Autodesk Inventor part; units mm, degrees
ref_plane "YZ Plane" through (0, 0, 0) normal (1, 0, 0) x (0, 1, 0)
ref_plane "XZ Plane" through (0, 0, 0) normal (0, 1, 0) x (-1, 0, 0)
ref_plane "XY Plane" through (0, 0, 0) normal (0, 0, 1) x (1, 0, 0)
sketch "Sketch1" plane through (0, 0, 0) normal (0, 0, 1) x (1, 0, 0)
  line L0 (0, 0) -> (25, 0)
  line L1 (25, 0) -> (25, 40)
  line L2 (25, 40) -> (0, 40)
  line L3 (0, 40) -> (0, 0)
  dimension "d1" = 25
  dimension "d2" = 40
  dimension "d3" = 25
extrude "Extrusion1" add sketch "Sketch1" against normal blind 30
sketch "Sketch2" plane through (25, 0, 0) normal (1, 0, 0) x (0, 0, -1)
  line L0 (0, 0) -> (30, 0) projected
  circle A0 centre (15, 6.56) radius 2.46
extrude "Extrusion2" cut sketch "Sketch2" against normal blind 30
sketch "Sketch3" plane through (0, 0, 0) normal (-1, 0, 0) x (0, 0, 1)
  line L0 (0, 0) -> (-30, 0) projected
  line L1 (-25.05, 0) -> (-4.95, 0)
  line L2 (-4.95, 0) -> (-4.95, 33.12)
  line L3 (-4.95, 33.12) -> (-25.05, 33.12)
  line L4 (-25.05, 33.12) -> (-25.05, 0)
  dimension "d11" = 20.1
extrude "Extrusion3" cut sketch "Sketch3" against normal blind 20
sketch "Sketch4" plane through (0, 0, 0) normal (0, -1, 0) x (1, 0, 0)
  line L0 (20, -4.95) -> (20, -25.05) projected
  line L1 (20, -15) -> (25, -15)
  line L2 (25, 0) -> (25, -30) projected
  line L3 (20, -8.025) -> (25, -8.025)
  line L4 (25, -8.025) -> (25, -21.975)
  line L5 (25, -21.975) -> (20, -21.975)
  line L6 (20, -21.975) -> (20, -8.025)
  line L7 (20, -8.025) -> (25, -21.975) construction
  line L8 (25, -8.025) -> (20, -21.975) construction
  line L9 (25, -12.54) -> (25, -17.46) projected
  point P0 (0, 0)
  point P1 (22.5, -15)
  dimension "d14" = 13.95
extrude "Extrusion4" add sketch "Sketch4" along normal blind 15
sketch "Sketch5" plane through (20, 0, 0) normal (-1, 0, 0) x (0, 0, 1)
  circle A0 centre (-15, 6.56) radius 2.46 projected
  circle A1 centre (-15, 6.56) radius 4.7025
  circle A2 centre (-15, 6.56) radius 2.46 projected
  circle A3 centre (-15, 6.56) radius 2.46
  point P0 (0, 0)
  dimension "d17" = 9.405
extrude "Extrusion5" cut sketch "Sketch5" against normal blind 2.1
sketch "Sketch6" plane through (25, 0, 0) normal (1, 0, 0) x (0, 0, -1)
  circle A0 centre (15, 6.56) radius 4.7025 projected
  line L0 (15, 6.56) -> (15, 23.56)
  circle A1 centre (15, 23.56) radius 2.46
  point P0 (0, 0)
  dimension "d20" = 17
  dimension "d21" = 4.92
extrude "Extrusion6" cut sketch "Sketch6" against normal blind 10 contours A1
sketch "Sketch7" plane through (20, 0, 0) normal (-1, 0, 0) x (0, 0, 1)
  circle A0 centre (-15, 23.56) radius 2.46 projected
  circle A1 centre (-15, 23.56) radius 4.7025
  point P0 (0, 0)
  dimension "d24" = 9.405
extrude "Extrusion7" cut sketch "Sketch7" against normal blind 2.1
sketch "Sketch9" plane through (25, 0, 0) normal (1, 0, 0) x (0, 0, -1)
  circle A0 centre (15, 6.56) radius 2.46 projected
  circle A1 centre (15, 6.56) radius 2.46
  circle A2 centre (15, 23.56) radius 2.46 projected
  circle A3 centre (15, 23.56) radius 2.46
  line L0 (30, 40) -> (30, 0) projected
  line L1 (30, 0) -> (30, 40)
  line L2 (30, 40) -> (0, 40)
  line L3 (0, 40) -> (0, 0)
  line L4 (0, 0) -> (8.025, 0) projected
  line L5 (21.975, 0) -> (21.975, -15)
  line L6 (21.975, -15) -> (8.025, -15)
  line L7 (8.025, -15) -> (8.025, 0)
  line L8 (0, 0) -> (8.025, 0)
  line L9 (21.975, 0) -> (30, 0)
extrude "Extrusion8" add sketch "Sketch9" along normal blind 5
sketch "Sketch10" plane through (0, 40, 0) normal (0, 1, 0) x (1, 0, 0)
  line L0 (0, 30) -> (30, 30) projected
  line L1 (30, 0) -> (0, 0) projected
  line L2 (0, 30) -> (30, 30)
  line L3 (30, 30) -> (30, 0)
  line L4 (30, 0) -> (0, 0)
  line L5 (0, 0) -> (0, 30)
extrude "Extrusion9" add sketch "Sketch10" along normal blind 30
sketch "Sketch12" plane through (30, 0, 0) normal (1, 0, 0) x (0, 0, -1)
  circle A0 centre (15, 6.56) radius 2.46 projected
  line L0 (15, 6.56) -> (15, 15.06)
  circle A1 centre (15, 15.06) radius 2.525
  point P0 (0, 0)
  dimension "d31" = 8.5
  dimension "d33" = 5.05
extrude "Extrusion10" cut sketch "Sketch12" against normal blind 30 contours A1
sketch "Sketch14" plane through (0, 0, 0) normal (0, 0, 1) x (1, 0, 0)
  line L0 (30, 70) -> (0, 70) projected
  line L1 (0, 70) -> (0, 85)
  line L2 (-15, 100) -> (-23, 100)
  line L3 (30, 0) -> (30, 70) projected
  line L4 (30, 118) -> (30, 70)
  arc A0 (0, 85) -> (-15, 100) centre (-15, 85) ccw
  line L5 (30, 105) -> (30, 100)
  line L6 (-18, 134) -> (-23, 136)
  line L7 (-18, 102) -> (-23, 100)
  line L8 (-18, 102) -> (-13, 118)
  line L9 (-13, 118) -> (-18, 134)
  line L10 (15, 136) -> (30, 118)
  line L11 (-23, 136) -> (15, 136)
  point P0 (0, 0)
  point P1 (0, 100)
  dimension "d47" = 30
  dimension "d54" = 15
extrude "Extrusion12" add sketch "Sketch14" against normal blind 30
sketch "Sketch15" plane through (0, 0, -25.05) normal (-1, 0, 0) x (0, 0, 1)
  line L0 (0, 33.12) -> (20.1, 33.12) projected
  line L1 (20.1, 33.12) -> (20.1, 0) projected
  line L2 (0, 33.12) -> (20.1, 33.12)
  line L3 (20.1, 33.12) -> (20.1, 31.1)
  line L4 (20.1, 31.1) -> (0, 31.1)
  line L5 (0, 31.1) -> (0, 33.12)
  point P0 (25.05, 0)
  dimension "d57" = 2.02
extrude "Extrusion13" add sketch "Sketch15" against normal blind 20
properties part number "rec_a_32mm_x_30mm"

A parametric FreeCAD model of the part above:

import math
import FreeCAD as App
import Part
import Sketcher


def add_polygon(sketch, points):
    """Adds a closed chain of lines whose ends are joined by coincident constraints."""
    first, n = sketch.GeometryCount, len(points)
    for a, b in zip(points, points[1:] + points[:1]):
        sketch.addGeometry(Part.LineSegment(App.Vector(*a, 0), App.Vector(*b, 0)), False)
    for i in range(n):
        sketch.addConstraint(Sketcher.Constraint("Coincident", first + i, 2, first + (i + 1) % n, 1))

doc = App.newDocument("Part")
body = doc.addObject("PartDesign::Body", "Body")

# Sketch on XY plane
sketch1 = body.newObject("Sketcher::SketchObject", "Sketch")
sketch1.AttachmentSupport = (doc.getObject("XY_Plane"), [""])
sketch1.MapMode = "FlatFace"
add_polygon(sketch1, [(0, 40), (0, 0), (25, 0), (25, 40)])  # lines 0-3
sketch1.addConstraint(Sketcher.Constraint("Vertical", 0))
sketch1.addConstraint(Sketcher.Constraint("Horizontal", 1))
sketch1.addConstraint(Sketcher.Constraint("Vertical", 2))
sketch1.addConstraint(Sketcher.Constraint("Horizontal", 3))
sketch1.addConstraint(Sketcher.Constraint("Coincident", 0, 2, -1, 1))
sketch1.addConstraint(Sketcher.Constraint("DistanceX", 1, 1, 1, 2, 25.0))
sketch1.addConstraint(Sketcher.Constraint("DistanceY", 0, 2, 0, 1, 40.0))
pad1 = body.newObject("PartDesign::Pad", "Pad")
pad1.Profile = sketch1
pad1.Length = 30
pad1.Reversed = True

# Sketch on YZ plane
sketch2 = body.newObject("Sketcher::SketchObject", "Sketch001")
sketch2.AttachmentSupport = (doc.getObject("YZ_Plane"), [""])
sketch2.MapMode = "FlatFace"
sketch2.AttachmentOffset = App.Placement(App.Vector(0, 0, 25), App.Rotation())
sketch2.addGeometry(Part.Circle(App.Vector(6.6, -15, 0), App.Vector(0, 0, 1), 2.5), False)
sketch2.addConstraint(Sketcher.Constraint("Diameter", 0, 4.92))
sketch2.addConstraint(Sketcher.Constraint("DistanceY", 0, 3, -1, 1, 15.0))
sketch2.addConstraint(Sketcher.Constraint("DistanceX", -1, 1, 0, 3, 6.56))
pocket1 = body.newObject("PartDesign::Pocket", "Pocket")
pocket1.Profile = sketch2
pocket1.Length = 30

# Sketch on YZ plane
sketch3 = body.newObject("Sketcher::SketchObject", "Sketch002")
sketch3.AttachmentSupport = (doc.getObject("YZ_Plane"), [""])
sketch3.MapMode = "FlatFace"
add_polygon(sketch3, [(0, -25), (0, -5), (33, -5), (33, -25)])  # lines 0-3
sketch3.addConstraint(Sketcher.Constraint("Vertical", 0))
sketch3.addConstraint(Sketcher.Constraint("Horizontal", 1))
sketch3.addConstraint(Sketcher.Constraint("Vertical", 2))
sketch3.addConstraint(Sketcher.Constraint("Horizontal", 3))
sketch3.addConstraint(Sketcher.Constraint("PointOnObject", 0, 2, -2))
sketch3.addConstraint(Sketcher.Constraint("DistanceY", 0, 1, 0, 2, 20.1))
sketch3.addConstraint(Sketcher.Constraint("DistanceX", 1, 1, 1, 2, 33.12))
sketch3.addConstraint(Sketcher.Constraint("DistanceY", 0, 2, -1, 1, 4.95))
pocket2 = body.newObject("PartDesign::Pocket", "Pocket001")
pocket2.Profile = sketch3
pocket2.Length = 20
pocket2.Reversed = True

# Sketch on XZ plane
sketch4 = body.newObject("Sketcher::SketchObject", "Sketch003")
sketch4.AttachmentSupport = (doc.getObject("XZ_Plane"), [""])
sketch4.MapMode = "FlatFace"
add_polygon(sketch4, [(25, -8), (20, -8), (20, -22), (25, -22)])  # lines 0-3
sketch4.addConstraint(Sketcher.Constraint("Horizontal", 0))
sketch4.addConstraint(Sketcher.Constraint("Vertical", 1))
sketch4.addConstraint(Sketcher.Constraint("Horizontal", 2))
sketch4.addConstraint(Sketcher.Constraint("Vertical", 3))
sketch4.addConstraint(Sketcher.Constraint("DistanceY", 1, 2, 1, 1, 13.95))
sketch4.addConstraint(Sketcher.Constraint("DistanceX", 0, 2, 0, 1, 5.0))
sketch4.addConstraint(Sketcher.Constraint("DistanceX", -1, 1, 0, 2, 20.0))
sketch4.addConstraint(Sketcher.Constraint("DistanceY", 0, 2, -1, 1, 8.025))
pad2 = body.newObject("PartDesign::Pad", "Pad001")
pad2.Profile = sketch4
pad2.Length = 15

# Sketch on YZ plane
sketch5 = body.newObject("Sketcher::SketchObject", "Sketch004")
sketch5.AttachmentSupport = (doc.getObject("YZ_Plane"), [""])
sketch5.MapMode = "FlatFace"
sketch5.AttachmentOffset = App.Placement(App.Vector(0, 0, 20), App.Rotation())
sketch5.addGeometry(Part.Circle(App.Vector(6.6, -15, 0), App.Vector(0, 0, 1), 4.7), False)
sketch5.addGeometry(Part.Circle(App.Vector(6.6, -15, 0), App.Vector(0, 0, 1), 2.5), False)
sketch5.addConstraint(Sketcher.Constraint("Coincident", 1, 3, 0, 3))
sketch5.addConstraint(Sketcher.Constraint("Diameter", 0, 9.405))
sketch5.addConstraint(Sketcher.Constraint("Diameter", 1, 4.92))
sketch5.addConstraint(Sketcher.Constraint("DistanceY", 0, 3, -1, 1, 15.0))
sketch5.addConstraint(Sketcher.Constraint("DistanceX", -1, 1, 0, 3, 6.56))
pocket3 = body.newObject("PartDesign::Pocket", "Pocket002")
pocket3.Profile = sketch5
pocket3.Length = 2.1
pocket3.Reversed = True

# Sketch on YZ plane
sketch6 = body.newObject("Sketcher::SketchObject", "Sketch005")
sketch6.AttachmentSupport = (doc.getObject("YZ_Plane"), [""])
sketch6.MapMode = "FlatFace"
sketch6.AttachmentOffset = App.Placement(App.Vector(0, 0, 25), App.Rotation())
sketch6.addGeometry(Part.Circle(App.Vector(23.6, -15, 0), App.Vector(0, 0, 1), 2.5), False)
sketch6.addConstraint(Sketcher.Constraint("Diameter", 0, 4.92))
sketch6.addConstraint(Sketcher.Constraint("DistanceY", 0, 3, -1, 1, 15.0))
sketch6.addConstraint(Sketcher.Constraint("DistanceX", -1, 1, 0, 3, 23.56))
pocket4 = body.newObject("PartDesign::Pocket", "Pocket003")
pocket4.Profile = sketch6
pocket4.Length = 10

# Sketch on YZ plane
sketch7 = body.newObject("Sketcher::SketchObject", "Sketch006")
sketch7.AttachmentSupport = (doc.getObject("YZ_Plane"), [""])
sketch7.MapMode = "FlatFace"
sketch7.AttachmentOffset = App.Placement(App.Vector(0, 0, 20), App.Rotation())
sketch7.addGeometry(Part.Circle(App.Vector(23.6, -15, 0), App.Vector(0, 0, 1), 4.7), False)
sketch7.addGeometry(Part.Circle(App.Vector(23.6, -15, 0), App.Vector(0, 0, 1), 2.5), False)
sketch7.addConstraint(Sketcher.Constraint("Coincident", 1, 3, 0, 3))
sketch7.addConstraint(Sketcher.Constraint("Diameter", 0, 9.405))
sketch7.addConstraint(Sketcher.Constraint("Diameter", 1, 4.92))
sketch7.addConstraint(Sketcher.Constraint("DistanceY", 0, 3, -1, 1, 15.0))
sketch7.addConstraint(Sketcher.Constraint("DistanceX", -1, 1, 0, 3, 23.56))
pocket5 = body.newObject("PartDesign::Pocket", "Pocket004")
pocket5.Profile = sketch7
pocket5.Length = 2.1
pocket5.Reversed = True

# Sketch on YZ plane
sketch8 = body.newObject("Sketcher::SketchObject", "Sketch007")
sketch8.AttachmentSupport = (doc.getObject("YZ_Plane"), [""])
sketch8.MapMode = "FlatFace"
sketch8.AttachmentOffset = App.Placement(App.Vector(0, 0, 25), App.Rotation())
add_polygon(sketch8, [(0, -30), (40, -30), (40, 0), (0, 0), (0, -8), (-15, -8), (-15, -22), (0, -22)])  # lines 0-7
sketch8.addGeometry(Part.Circle(App.Vector(6.6, -15, 0), App.Vector(0, 0, 1), 2.5), False)  # 8
sketch8.addGeometry(Part.Circle(App.Vector(23.6, -15, 0), App.Vector(0, 0, 1), 2.5), False)  # 9
sketch8.addConstraint(Sketcher.Constraint("Horizontal", 0))
sketch8.addConstraint(Sketcher.Constraint("Vertical", 1))
sketch8.addConstraint(Sketcher.Constraint("Horizontal", 2))
sketch8.addConstraint(Sketcher.Constraint("Vertical", 3))
sketch8.addConstraint(Sketcher.Constraint("Horizontal", 4))
sketch8.addConstraint(Sketcher.Constraint("Vertical", 5))
sketch8.addConstraint(Sketcher.Constraint("Horizontal", 6))
sketch8.addConstraint(Sketcher.Constraint("Vertical", 7))
sketch8.addConstraint(Sketcher.Constraint("Coincident", 2, 2, -1, 1))
sketch8.addConstraint(Sketcher.Constraint("Equal", 8, 9))
sketch8.addConstraint(Sketcher.Constraint("PointOnObject", 6, 2, -2))
sketch8.addConstraint(Sketcher.Constraint("Horizontal", 8, 3, 9, 3))
sketch8.addConstraint(Sketcher.Constraint("Equal", 3, 7))
sketch8.addConstraint(Sketcher.Constraint("Diameter", 8, 4.92))
sketch8.addConstraint(Sketcher.Constraint("DistanceX", 0, 1, 0, 2, 40.0))
sketch8.addConstraint(Sketcher.Constraint("DistanceX", 4, 2, 4, 1, 15.0))
sketch8.addConstraint(Sketcher.Constraint("DistanceY", 1, 1, 1, 2, 30.0))
sketch8.addConstraint(Sketcher.Constraint("DistanceY", 8, 3, -1, 1, 15.0))
sketch8.addConstraint(Sketcher.Constraint("DistanceX", 8, 3, 9, 3, 17.0))
sketch8.addConstraint(Sketcher.Constraint("DistanceY", 5, 2, 5, 1, 13.95))
sketch8.addConstraint(Sketcher.Constraint("DistanceX", -1, 1, 8, 3, 6.56))
pad3 = body.newObject("PartDesign::Pad", "Pad002")
pad3.Profile = sketch8
pad3.Length = 5

# Sketch on XZ plane
sketch9 = body.newObject("Sketcher::SketchObject", "Sketch008")
sketch9.AttachmentSupport = (doc.getObject("XZ_Plane"), [""])
sketch9.MapMode = "FlatFace"
sketch9.AttachmentOffset = App.Placement(App.Vector(0, 0, -40), App.Rotation())
add_polygon(sketch9, [(30, -30), (0, -30), (0, 0), (30, 0)])  # lines 0-3
sketch9.addConstraint(Sketcher.Constraint("Horizontal", 0))
sketch9.addConstraint(Sketcher.Constraint("Vertical", 1))
sketch9.addConstraint(Sketcher.Constraint("Horizontal", 2))
sketch9.addConstraint(Sketcher.Constraint("Vertical", 3))
sketch9.addConstraint(Sketcher.Constraint("Coincident", 1, 2, -1, 1))
sketch9.addConstraint(Sketcher.Constraint("Equal", 2, 1))
sketch9.addConstraint(Sketcher.Constraint("DistanceX", 0, 2, 0, 1, 30.0))
pad4 = body.newObject("PartDesign::Pad", "Pad003")
pad4.Profile = sketch9
pad4.Length = 30
pad4.Reversed = True

# Sketch on YZ plane
sketch10 = body.newObject("Sketcher::SketchObject", "Sketch009")
sketch10.AttachmentSupport = (doc.getObject("YZ_Plane"), [""])
sketch10.MapMode = "FlatFace"
sketch10.AttachmentOffset = App.Placement(App.Vector(0, 0, 30), App.Rotation())
sketch10.addGeometry(Part.Circle(App.Vector(15.1, -15, 0), App.Vector(0, 0, 1), 2.5), False)
sketch10.addConstraint(Sketcher.Constraint("Diameter", 0, 5.05))
sketch10.addConstraint(Sketcher.Constraint("DistanceY", 0, 3, -1, 1, 15.0))
sketch10.addConstraint(Sketcher.Constraint("DistanceX", -1, 1, 0, 3, 15.06))
pocket6 = body.newObject("PartDesign::Pocket", "Pocket005")
pocket6.Profile = sketch10
pocket6.Length = 30

# Sketch on XY plane
sketch11 = body.newObject("Sketcher::SketchObject", "Sketch010")
sketch11.AttachmentSupport = (doc.getObject("XY_Plane"), [""])
sketch11.MapMode = "FlatFace"
sketch11.addGeometry(Part.LineSegment(App.Vector(0, 70, 0), App.Vector(30, 70, 0)), False)
sketch11.addGeometry(Part.LineSegment(App.Vector(30, 70, 0), App.Vector(30, 118, 0)), False)
sketch11.addGeometry(Part.LineSegment(App.Vector(30, 118, 0), App.Vector(15, 136, 0)), False)
sketch11.addGeometry(Part.LineSegment(App.Vector(15, 136, 0), App.Vector(-23, 136, 0)), False)
sketch11.addGeometry(Part.LineSegment(App.Vector(-23, 136, 0), App.Vector(-18, 134, 0)), False)
sketch11.addGeometry(Part.LineSegment(App.Vector(-18, 134, 0), App.Vector(-13, 118, 0)), False)
sketch11.addGeometry(Part.LineSegment(App.Vector(-13, 118, 0), App.Vector(-18, 102, 0)), False)
sketch11.addGeometry(Part.LineSegment(App.Vector(-18, 102, 0), App.Vector(-23, 100, 0)), False)
sketch11.addGeometry(Part.LineSegment(App.Vector(-23, 100, 0), App.Vector(-15, 100, 0)), False)
sketch11.addGeometry(Part.ArcOfCircle(Part.Circle(App.Vector(-15, 85, 0), App.Vector(0, 0, 1), 15), math.radians(0), math.radians(90)), False)
sketch11.addGeometry(Part.LineSegment(App.Vector(0, 85, 0), App.Vector(0, 70, 0)), False)
sketch11.addConstraint(Sketcher.Constraint("Coincident", 0, 2, 1, 1))
sketch11.addConstraint(Sketcher.Constraint("Coincident", 1, 2, 2, 1))
sketch11.addConstraint(Sketcher.Constraint("Coincident", 2, 2, 3, 1))
sketch11.addConstraint(Sketcher.Constraint("Coincident", 3, 2, 4, 1))
sketch11.addConstraint(Sketcher.Constraint("Coincident", 4, 2, 5, 1))
sketch11.addConstraint(Sketcher.Constraint("Coincident", 5, 2, 6, 1))
sketch11.addConstraint(Sketcher.Constraint("Coincident", 6, 2, 7, 1))
sketch11.addConstraint(Sketcher.Constraint("Coincident", 7, 2, 8, 1))
sketch11.addConstraint(Sketcher.Constraint("Tangent", 8, 2, 9, 2))
sketch11.addConstraint(Sketcher.Constraint("Tangent", 9, 1, 10, 1))
sketch11.addConstraint(Sketcher.Constraint("Coincident", 10, 2, 0, 1))
sketch11.addConstraint(Sketcher.Constraint("Horizontal", 0))
sketch11.addConstraint(Sketcher.Constraint("Vertical", 1))
sketch11.addConstraint(Sketcher.Constraint("Horizontal", 3))
sketch11.addConstraint(Sketcher.Constraint("Horizontal", 8))
sketch11.addConstraint(Sketcher.Constraint("Vertical", 10))
sketch11.addConstraint(Sketcher.Constraint("PointOnObject", 9, 1, -2))
sketch11.addConstraint(Sketcher.Constraint("Horizontal", 1, 2, 5, 2))
sketch11.addConstraint(Sketcher.Constraint("Vertical", 4, 2, 6, 2))
sketch11.addConstraint(Sketcher.Constraint("Vertical", 3, 2, 7, 2))
sketch11.addConstraint(Sketcher.Constraint("Equal", 5, 6))
sketch11.addConstraint(Sketcher.Constraint("Equal", 4, 7))
sketch11.addConstraint(Sketcher.Constraint("Radius", 9, 15.0))
sketch11.addConstraint(Sketcher.Constraint("DistanceX", 0, 1, 0, 2, 30.0))
sketch11.addConstraint(Sketcher.Constraint("DistanceY", 10, 2, 10, 1, 15.0))
sketch11.addConstraint(Sketcher.Constraint("DistanceX", -1, 1, 2, 2, 15.0))
sketch11.addConstraint(Sketcher.Constraint("DistanceX", 3, 2, 3, 1, 38.0))
sketch11.addConstraint(Sketcher.Constraint("DistanceY", 1, 1, 1, 2, 48.0))
sketch11.addConstraint(Sketcher.Constraint("DistanceY", -1, 1, 9, 3, 85.0))
sketch11.addConstraint(Sketcher.Constraint("DistanceX", 4, 2, -1, 1, 18.0))
sketch11.addConstraint(Sketcher.Constraint("DistanceY", -1, 1, 4, 2, 134.0))
sketch11.addConstraint(Sketcher.Constraint("DistanceX", 5, 2, -1, 1, 13.0))
pad5 = body.newObject("PartDesign::Pad", "Pad004")
pad5.Profile = sketch11
pad5.Length = 30
pad5.Reversed = True

# Sketch on YZ plane
sketch12 = body.newObject("Sketcher::SketchObject", "Sketch011")
sketch12.AttachmentSupport = (doc.getObject("YZ_Plane"), [""])
sketch12.MapMode = "FlatFace"
add_polygon(sketch12, [(33.1, -5), (33.1, -25.1), (31.1, -25.1), (31.1, -5)])  # lines 0-3
sketch12.addConstraint(Sketcher.Constraint("Vertical", 0))
sketch12.addConstraint(Sketcher.Constraint("Horizontal", 1))
sketch12.addConstraint(Sketcher.Constraint("Vertical", 2))
sketch12.addConstraint(Sketcher.Constraint("Horizontal", 3))
sketch12.addConstraint(Sketcher.Constraint("DistanceX", 1, 2, 1, 1, 2.02))
sketch12.addConstraint(Sketcher.Constraint("DistanceY", 0, 2, 0, 1, 20.1))
sketch12.addConstraint(Sketcher.Constraint("DistanceX", -1, 1, 1, 2, 31.1))
sketch12.addConstraint(Sketcher.Constraint("DistanceY", 0, 2, -1, 1, 25.05))
pad6 = body.newObject("PartDesign::Pad", "Pad005")
pad6.Profile = sketch12
pad6.Length = 20

doc.recompute()
